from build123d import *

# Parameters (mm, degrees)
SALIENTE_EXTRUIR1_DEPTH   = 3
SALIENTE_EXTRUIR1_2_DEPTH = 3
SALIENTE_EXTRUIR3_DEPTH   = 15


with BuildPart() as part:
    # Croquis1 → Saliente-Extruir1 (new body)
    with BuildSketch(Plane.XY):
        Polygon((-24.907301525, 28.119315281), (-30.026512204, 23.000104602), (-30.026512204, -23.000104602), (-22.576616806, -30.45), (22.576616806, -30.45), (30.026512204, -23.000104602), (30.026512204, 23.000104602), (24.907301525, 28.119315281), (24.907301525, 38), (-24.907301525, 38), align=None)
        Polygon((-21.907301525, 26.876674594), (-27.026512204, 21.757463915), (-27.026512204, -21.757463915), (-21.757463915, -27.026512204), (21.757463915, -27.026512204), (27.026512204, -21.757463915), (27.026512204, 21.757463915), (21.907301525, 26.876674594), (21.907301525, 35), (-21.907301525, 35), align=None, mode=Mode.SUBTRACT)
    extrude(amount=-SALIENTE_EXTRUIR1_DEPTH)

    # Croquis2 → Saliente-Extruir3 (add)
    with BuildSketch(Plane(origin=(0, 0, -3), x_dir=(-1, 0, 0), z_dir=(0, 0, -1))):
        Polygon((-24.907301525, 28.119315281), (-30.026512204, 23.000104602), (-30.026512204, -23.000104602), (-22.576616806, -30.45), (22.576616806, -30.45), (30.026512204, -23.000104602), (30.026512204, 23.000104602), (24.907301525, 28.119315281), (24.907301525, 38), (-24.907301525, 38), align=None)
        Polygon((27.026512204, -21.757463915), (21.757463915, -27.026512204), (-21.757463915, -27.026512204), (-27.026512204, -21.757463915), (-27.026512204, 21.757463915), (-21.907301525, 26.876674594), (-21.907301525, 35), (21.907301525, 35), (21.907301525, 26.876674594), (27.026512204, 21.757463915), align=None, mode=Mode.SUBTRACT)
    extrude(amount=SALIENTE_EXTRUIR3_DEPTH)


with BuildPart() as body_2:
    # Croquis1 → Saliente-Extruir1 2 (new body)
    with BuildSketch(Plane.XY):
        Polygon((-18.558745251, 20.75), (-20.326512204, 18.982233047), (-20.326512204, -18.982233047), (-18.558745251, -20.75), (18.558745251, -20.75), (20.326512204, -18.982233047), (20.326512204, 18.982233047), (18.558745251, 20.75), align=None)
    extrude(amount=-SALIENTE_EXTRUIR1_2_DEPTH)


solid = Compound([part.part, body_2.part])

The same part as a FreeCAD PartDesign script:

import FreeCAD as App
import Part
import Sketcher
from FreeCAD import Vector

doc = App.newDocument("Part")
body = doc.addObject("PartDesign::Body", "Body")

sketch1 = body.newObject("Sketcher::SketchObject", "Sketch")
sketch1.AttachmentSupport = (doc.getObject("XY_Plane"), [""])
sketch1.MapMode = "FlatFace"
sketch1.addGeometry([
    Part.LineSegment(Vector(-24.907302, 28.119315, 0), Vector(-30.026512, 23.000105, 0)),
    Part.LineSegment(Vector(-30.026512, 23.000105, 0), Vector(-30.026512, -23.000105, 0)),
    Part.LineSegment(Vector(-30.026512, -23.000105, 0), Vector(-22.576617, -30.45, 0)),
    Part.LineSegment(Vector(-22.576617, -30.45, 0), Vector(22.576617, -30.45, 0)),
    Part.LineSegment(Vector(22.576617, -30.45, 0), Vector(30.026512, -23.000105, 0)),
    Part.LineSegment(Vector(30.026512, -23.000105, 0), Vector(30.026512, 23.000105, 0)),
    Part.LineSegment(Vector(30.026512, 23.000105, 0), Vector(24.907302, 28.119315, 0)),
    Part.LineSegment(Vector(24.907302, 28.119315, 0), Vector(24.907302, 38, 0)),
    Part.LineSegment(Vector(24.907302, 38, 0), Vector(-24.907302, 38, 0)),
    Part.LineSegment(Vector(-24.907302, 38, 0), Vector(-24.907302, 28.119315, 0)),
    Part.LineSegment(Vector(-27.026512, 21.757464, 0), Vector(-21.907302, 26.876675, 0)),
    Part.LineSegment(Vector(-21.907302, 26.876675, 0), Vector(-21.907302, 35, 0)),
    Part.LineSegment(Vector(-21.907302, 35, 0), Vector(21.907302, 35, 0)),
    Part.LineSegment(Vector(21.907302, 35, 0), Vector(21.907302, 26.876675, 0)),
    Part.LineSegment(Vector(21.907302, 26.876675, 0), Vector(27.026512, 21.757464, 0)),
    Part.LineSegment(Vector(27.026512, 21.757464, 0), Vector(27.026512, -21.757464, 0)),
    Part.LineSegment(Vector(27.026512, -21.757464, 0), Vector(21.757464, -27.026512, 0)),
    Part.LineSegment(Vector(21.757464, -27.026512, 0), Vector(-21.757464, -27.026512, 0)),
    Part.LineSegment(Vector(-21.757464, -27.026512, 0), Vector(-27.026512, -21.757464, 0)),
    Part.LineSegment(Vector(-27.026512, -21.757464, 0), Vector(-27.026512, 21.757464, 0)),
], False)
sketch1.addConstraint([
    Sketcher.Constraint("Coincident", 0, 2, 1, 1),
    Sketcher.Constraint("Coincident", 1, 2, 2, 1),
    Sketcher.Constraint("Coincident", 2, 2, 3, 1),
    Sketcher.Constraint("Coincident", 3, 2, 4, 1),
    Sketcher.Constraint("Coincident", 4, 2, 5, 1),
    Sketcher.Constraint("Coincident", 5, 2, 6, 1),
    Sketcher.Constraint("Coincident", 6, 2, 7, 1),
    Sketcher.Constraint("Coincident", 7, 2, 8, 1),
    Sketcher.Constraint("Coincident", 8, 2, 9, 1),
    Sketcher.Constraint("Coincident", 9, 2, 0, 1),
    Sketcher.Constraint("Coincident", 10, 2, 11, 1),
    Sketcher.Constraint("Coincident", 11, 2, 12, 1),
    Sketcher.Constraint("Coincident", 12, 2, 13, 1),
    Sketcher.Constraint("Coincident", 13, 2, 14, 1),
    Sketcher.Constraint("Coincident", 14, 2, 15, 1),
    Sketcher.Constraint("Coincident", 15, 2, 16, 1),
    Sketcher.Constraint("Coincident", 16, 2, 17, 1),
    Sketcher.Constraint("Coincident", 17, 2, 18, 1),
    Sketcher.Constraint("Coincident", 18, 2, 19, 1),
    Sketcher.Constraint("Coincident", 19, 2, 10, 1),
    Sketcher.Constraint("Vertical", 1),
    Sketcher.Constraint("Horizontal", 3),
    Sketcher.Constraint("Vertical", 5),
    Sketcher.Constraint("Vertical", 7),
    Sketcher.Constraint("Horizontal", 8),
    Sketcher.Constraint("Vertical", 9),
    Sketcher.Constraint("Vertical", 11),
    Sketcher.Constraint("Horizontal", 12),
    Sketcher.Constraint("Vertical", 13),
    Sketcher.Constraint("Vertical", 15),
    Sketcher.Constraint("Horizontal", 17),
    Sketcher.Constraint("Vertical", 19),
    Sketcher.Constraint("Symmetric", 0, 2, 4, 2, -1, 1),
    Sketcher.Constraint("Symmetric", 14, 2, 18, 2, -1, 1),
    Sketcher.Constraint("Symmetric", 6, 2, 9, 2, -2),
    Sketcher.Constraint("Symmetric", 10, 2, 13, 2, -2),
    Sketcher.Constraint("Perpendicular", 0, 2),
    Sketcher.Constraint("Perpendicular", 2, 4),
    Sketcher.Constraint("Perpendicular", 4, 6),
    Sketcher.Constraint("Perpendicular", 6, 10),
    Sketcher.Constraint("Perpendicular", 10, 14),
    Sketcher.Constraint("Perpendicular", 14, 16),
    Sketcher.Constraint("Perpendicular", 16, 18),
    Sketcher.Constraint("Horizontal", 1, 2, 4, 2),
    Sketcher.Constraint("Horizontal", 0, 2, 5, 2),
    Sketcher.Constraint("Horizontal", 15, 2, 18, 2),
    Sketcher.Constraint("Equal", 17, 15),
    Sketcher.Constraint("Equal", 6, 10),
    Sketcher.Constraint("DistanceY", -1, 1, 7, 2, 38.0),
    Sketcher.Constraint("DistanceY", -1, 1, 11, 2, 35.0),
    Sketcher.Constraint("DistanceX", 9, 2, 10, 2, 3.0),
    Sketcher.Constraint("DistanceY", 2, 2, -1, 1, 30.45),
    Sketcher.Constraint("DistanceY", 1, 2, 1, 1, 46.000209),
    Sketcher.Constraint("DistanceX", -1, 1, 6, 2, 24.907302),
    Sketcher.Constraint("Distance", 16, 7.45156),
    Sketcher.Constraint("DistanceX", 3, 1, 3, 2, 45.153234),
])
pad1 = body.newObject("PartDesign::Pad", "Pad")
pad1.Profile = sketch1
pad1.Length = 3
pad1.Reversed = True

sketch2 = body.newObject("Sketcher::SketchObject", "Sketch001")
sketch2.AttachmentSupport = (doc.getObject("XY_Plane"), [""])
sketch2.MapMode = "FlatFace"
sketch2.AttachmentOffset = App.Placement(Vector(0, 0, -3), App.Rotation())
sketch2.addGeometry([
    Part.LineSegment(Vector(24.907302, 28.119315, 0), Vector(30.026512, 23.000105, 0)),
    Part.LineSegment(Vector(30.026512, 23.000105, 0), Vector(30.026512, -23.000105, 0)),
    Part.LineSegment(Vector(30.026512, -23.000105, 0), Vector(22.576617, -30.45, 0)),
    Part.LineSegment(Vector(22.576617, -30.45, 0), Vector(-22.576617, -30.45, 0)),
    Part.LineSegment(Vector(-22.576617, -30.45, 0), Vector(-30.026512, -23.000105, 0)),
    Part.LineSegment(Vector(-30.026512, -23.000105, 0), Vector(-30.026512, 23.000105, 0)),
    Part.LineSegment(Vector(-30.026512, 23.000105, 0), Vector(-24.907302, 28.119315, 0)),
    Part.LineSegment(Vector(-24.907302, 28.119315, 0), Vector(-24.907302, 38, 0)),
    Part.LineSegment(Vector(-24.907302, 38, 0), Vector(24.907302, 38, 0)),
    Part.LineSegment(Vector(24.907302, 38, 0), Vector(24.907302, 28.119315, 0)),
    Part.LineSegment(Vector(-27.026512, 21.757464, 0), Vector(-27.026512, -21.757464, 0)),
    Part.LineSegment(Vector(-27.026512, -21.757464, 0), Vector(-21.757464, -27.026512, 0)),
    Part.LineSegment(Vector(-21.757464, -27.026512, 0), Vector(21.757464, -27.026512, 0)),
    Part.LineSegment(Vector(21.757464, -27.026512, 0), Vector(27.026512, -21.757464, 0)),
    Part.LineSegment(Vector(27.026512, -21.757464, 0), Vector(27.026512, 21.757464, 0)),
    Part.LineSegment(Vector(27.026512, 21.757464, 0), Vector(21.907302, 26.876675, 0)),
    Part.LineSegment(Vector(21.907302, 26.876675, 0), Vector(21.907302, 35, 0)),
    Part.LineSegment(Vector(21.907302, 35, 0), Vector(-21.907302, 35, 0)),
    Part.LineSegment(Vector(-21.907302, 35, 0), Vector(-21.907302, 26.876675, 0)),
    Part.LineSegment(Vector(-21.907302, 26.876675, 0), Vector(-27.026512, 21.757464, 0)),
], False)
sketch2.addConstraint([
    Sketcher.Constraint("Coincident", 0, 2, 1, 1),
    Sketcher.Constraint("Coincident", 1, 2, 2, 1),
    Sketcher.Constraint("Coincident", 2, 2, 3, 1),
    Sketcher.Constraint("Coincident", 3, 2, 4, 1),
    Sketcher.Constraint("Coincident", 4, 2, 5, 1),
    Sketcher.Constraint("Coincident", 5, 2, 6, 1),
    Sketcher.Constraint("Coincident", 6, 2, 7, 1),
    Sketcher.Constraint("Coincident", 7, 2, 8, 1),
    Sketcher.Constraint("Coincident", 8, 2, 9, 1),
    Sketcher.Constraint("Coincident", 9, 2, 0, 1),
    Sketcher.Constraint("Coincident", 10, 2, 11, 1),
    Sketcher.Constraint("Coincident", 11, 2, 12, 1),
    Sketcher.Constraint("Coincident", 12, 2, 13, 1),
    Sketcher.Constraint("Coincident", 13, 2, 14, 1),
    Sketcher.Constraint("Coincident", 14, 2, 15, 1),
    Sketcher.Constraint("Coincident", 15, 2, 16, 1),
    Sketcher.Constraint("Coincident", 16, 2, 17, 1),
    Sketcher.Constraint("Coincident", 17, 2, 18, 1),
    Sketcher.Constraint("Coincident", 18, 2, 19, 1),
    Sketcher.Constraint("Coincident", 19, 2, 10, 1),
    Sketcher.Constraint("Vertical", 1),
    Sketcher.Constraint("Horizontal", 3),
    Sketcher.Constraint("Vertical", 5),
    Sketcher.Constraint("Vertical", 7),
    Sketcher.Constraint("Horizontal", 8),
    Sketcher.Constraint("Vertical", 9),
    Sketcher.Constraint("Vertical", 10),
    Sketcher.Constraint("Horizontal", 12),
    Sketcher.Constraint("Vertical", 14),
    Sketcher.Constraint("Vertical", 16),
    Sketcher.Constraint("Horizontal", 17),
    Sketcher.Constraint("Vertical", 18),
    Sketcher.Constraint("Symmetric", 0, 2, 4, 2, -1, 1),
    Sketcher.Constraint("Symmetric", 10, 2, 14, 2, -1, 1),
    Sketcher.Constraint("Symmetric", 6, 2, 9, 2, -2),
    Sketcher.Constraint("Symmetric", 15, 2, 18, 2, -2),
    Sketcher.Constraint("Perpendicular", 0, 2),
    Sketcher.Constraint("Perpendicular", 2, 4),
    Sketcher.Constraint("Perpendicular", 4, 6),
    Sketcher.Constraint("Perpendicular", 6, 11),
    Sketcher.Constraint("Perpendicular", 11, 13),
    Sketcher.Constraint("Perpendicular", 13, 15),
    Sketcher.Constraint("Perpendicular", 15, 19),
    Sketcher.Constraint("Horizontal", 1, 2, 4, 2),
    Sketcher.Constraint("Horizontal", 0, 2, 5, 2),
    Sketcher.Constraint("Horizontal", 10, 2, 13, 2),
    Sketcher.Constraint("Equal", 12, 10),
    Sketcher.Constraint("Equal", 6, 15),
    Sketcher.Constraint("DistanceY", -1, 1, 7, 2, 38.0),
    Sketcher.Constraint("DistanceY", -1, 1, 16, 2, 35.0),
    Sketcher.Constraint("DistanceX", 4, 2, 10, 2, 3.0),
    Sketcher.Constraint("DistanceY", 2, 2, -1, 1, 30.45),
    Sketcher.Constraint("DistanceY", 1, 2, 1, 1, 46.000209),
    Sketcher.Constraint("DistanceX", 6, 2, -1, 1, 24.907302),
    Sketcher.Constraint("Distance", 11, 7.45156),
    Sketcher.Constraint("DistanceX", 3, 2, 3, 1, 45.153234),
])
pad2 = body.newObject("PartDesign::Pad", "Pad001")
pad2.Profile = sketch2
pad2.Length = 15
pad2.Reversed = True
body2 = doc.addObject("PartDesign::Body", "Body001")

sketch3 = body2.newObject("Sketcher::SketchObject", "Sketch002")
sketch3.AttachmentSupport = (doc.getObject("XY_Plane001"), [""])
sketch3.MapMode = "FlatFace"
sketch3.addGeometry([
    Part.LineSegment(Vector(-18.558745, 20.75, 0), Vector(-20.326512, 18.982233, 0)),
    Part.LineSegment(Vector(-20.326512, 18.982233, 0), Vector(-20.326512, -18.982233, 0)),
    Part.LineSegment(Vector(-20.326512, -18.982233, 0), Vector(-18.558745, -20.75, 0)),
    Part.LineSegment(Vector(-18.558745, -20.75, 0), Vector(18.558745, -20.75, 0)),
    Part.LineSegment(Vector(18.558745, -20.75, 0), Vector(20.326512, -18.982233, 0)),
    Part.LineSegment(Vector(20.326512, -18.982233, 0), Vector(20.326512, 18.982233, 0)),
    Part.LineSegment(Vector(20.326512, 18.982233, 0), Vector(18.558745, 20.75, 0)),
    Part.LineSegment(Vector(18.558745, 20.75, 0), Vector(-18.558745, 20.75, 0)),
], False)
sketch3.addConstraint([
    Sketcher.Constraint("Coincident", 0, 2, 1, 1),
    Sketcher.Constraint("Coincident", 1, 2, 2, 1),
    Sketcher.Constraint("Coincident", 2, 2, 3, 1),
    Sketcher.Constraint("Coincident", 3, 2, 4, 1),
    Sketcher.Constraint("Coincident", 4, 2, 5, 1),
    Sketcher.Constraint("Coincident", 5, 2, 6, 1),
    Sketcher.Constraint("Coincident", 6, 2, 7, 1),
    Sketcher.Constraint("Coincident", 7, 2, 0, 1),
    Sketcher.Constraint("Vertical", 1),
    Sketcher.Constraint("Horizontal", 3),
    Sketcher.Constraint("Vertical", 5),
    Sketcher.Constraint("Horizontal", 7),
    Sketcher.Constraint("Symmetric", 0, 2, 4, 2, -1, 1),
    Sketcher.Constraint("Symmetric", 2, 2, 6, 2, -1, 1),
    Sketcher.Constraint("Perpendicular", 0, 2),
    Sketcher.Constraint("Perpendicular", 2, 4),
    Sketcher.Constraint("Perpendicular", 4, 6),
    Sketcher.Constraint("Horizontal", 1, 2, 4, 2),
    Sketcher.Constraint("Vertical", 3, 2, 6, 2),
    Sketcher.Constraint("Distance", 0, 2.5),
    Sketcher.Constraint("DistanceY", 3, 2, 6, 2, 41.5),
    Sketcher.Constraint("DistanceX", 3, 1, 3, 2, 37.117491),
])
pad3 = body2.newObject("PartDesign::Pad", "Pad002")
pad3.Profile = sketch3
pad3.Length = 3
pad3.Reversed = True

doc.recompute()
